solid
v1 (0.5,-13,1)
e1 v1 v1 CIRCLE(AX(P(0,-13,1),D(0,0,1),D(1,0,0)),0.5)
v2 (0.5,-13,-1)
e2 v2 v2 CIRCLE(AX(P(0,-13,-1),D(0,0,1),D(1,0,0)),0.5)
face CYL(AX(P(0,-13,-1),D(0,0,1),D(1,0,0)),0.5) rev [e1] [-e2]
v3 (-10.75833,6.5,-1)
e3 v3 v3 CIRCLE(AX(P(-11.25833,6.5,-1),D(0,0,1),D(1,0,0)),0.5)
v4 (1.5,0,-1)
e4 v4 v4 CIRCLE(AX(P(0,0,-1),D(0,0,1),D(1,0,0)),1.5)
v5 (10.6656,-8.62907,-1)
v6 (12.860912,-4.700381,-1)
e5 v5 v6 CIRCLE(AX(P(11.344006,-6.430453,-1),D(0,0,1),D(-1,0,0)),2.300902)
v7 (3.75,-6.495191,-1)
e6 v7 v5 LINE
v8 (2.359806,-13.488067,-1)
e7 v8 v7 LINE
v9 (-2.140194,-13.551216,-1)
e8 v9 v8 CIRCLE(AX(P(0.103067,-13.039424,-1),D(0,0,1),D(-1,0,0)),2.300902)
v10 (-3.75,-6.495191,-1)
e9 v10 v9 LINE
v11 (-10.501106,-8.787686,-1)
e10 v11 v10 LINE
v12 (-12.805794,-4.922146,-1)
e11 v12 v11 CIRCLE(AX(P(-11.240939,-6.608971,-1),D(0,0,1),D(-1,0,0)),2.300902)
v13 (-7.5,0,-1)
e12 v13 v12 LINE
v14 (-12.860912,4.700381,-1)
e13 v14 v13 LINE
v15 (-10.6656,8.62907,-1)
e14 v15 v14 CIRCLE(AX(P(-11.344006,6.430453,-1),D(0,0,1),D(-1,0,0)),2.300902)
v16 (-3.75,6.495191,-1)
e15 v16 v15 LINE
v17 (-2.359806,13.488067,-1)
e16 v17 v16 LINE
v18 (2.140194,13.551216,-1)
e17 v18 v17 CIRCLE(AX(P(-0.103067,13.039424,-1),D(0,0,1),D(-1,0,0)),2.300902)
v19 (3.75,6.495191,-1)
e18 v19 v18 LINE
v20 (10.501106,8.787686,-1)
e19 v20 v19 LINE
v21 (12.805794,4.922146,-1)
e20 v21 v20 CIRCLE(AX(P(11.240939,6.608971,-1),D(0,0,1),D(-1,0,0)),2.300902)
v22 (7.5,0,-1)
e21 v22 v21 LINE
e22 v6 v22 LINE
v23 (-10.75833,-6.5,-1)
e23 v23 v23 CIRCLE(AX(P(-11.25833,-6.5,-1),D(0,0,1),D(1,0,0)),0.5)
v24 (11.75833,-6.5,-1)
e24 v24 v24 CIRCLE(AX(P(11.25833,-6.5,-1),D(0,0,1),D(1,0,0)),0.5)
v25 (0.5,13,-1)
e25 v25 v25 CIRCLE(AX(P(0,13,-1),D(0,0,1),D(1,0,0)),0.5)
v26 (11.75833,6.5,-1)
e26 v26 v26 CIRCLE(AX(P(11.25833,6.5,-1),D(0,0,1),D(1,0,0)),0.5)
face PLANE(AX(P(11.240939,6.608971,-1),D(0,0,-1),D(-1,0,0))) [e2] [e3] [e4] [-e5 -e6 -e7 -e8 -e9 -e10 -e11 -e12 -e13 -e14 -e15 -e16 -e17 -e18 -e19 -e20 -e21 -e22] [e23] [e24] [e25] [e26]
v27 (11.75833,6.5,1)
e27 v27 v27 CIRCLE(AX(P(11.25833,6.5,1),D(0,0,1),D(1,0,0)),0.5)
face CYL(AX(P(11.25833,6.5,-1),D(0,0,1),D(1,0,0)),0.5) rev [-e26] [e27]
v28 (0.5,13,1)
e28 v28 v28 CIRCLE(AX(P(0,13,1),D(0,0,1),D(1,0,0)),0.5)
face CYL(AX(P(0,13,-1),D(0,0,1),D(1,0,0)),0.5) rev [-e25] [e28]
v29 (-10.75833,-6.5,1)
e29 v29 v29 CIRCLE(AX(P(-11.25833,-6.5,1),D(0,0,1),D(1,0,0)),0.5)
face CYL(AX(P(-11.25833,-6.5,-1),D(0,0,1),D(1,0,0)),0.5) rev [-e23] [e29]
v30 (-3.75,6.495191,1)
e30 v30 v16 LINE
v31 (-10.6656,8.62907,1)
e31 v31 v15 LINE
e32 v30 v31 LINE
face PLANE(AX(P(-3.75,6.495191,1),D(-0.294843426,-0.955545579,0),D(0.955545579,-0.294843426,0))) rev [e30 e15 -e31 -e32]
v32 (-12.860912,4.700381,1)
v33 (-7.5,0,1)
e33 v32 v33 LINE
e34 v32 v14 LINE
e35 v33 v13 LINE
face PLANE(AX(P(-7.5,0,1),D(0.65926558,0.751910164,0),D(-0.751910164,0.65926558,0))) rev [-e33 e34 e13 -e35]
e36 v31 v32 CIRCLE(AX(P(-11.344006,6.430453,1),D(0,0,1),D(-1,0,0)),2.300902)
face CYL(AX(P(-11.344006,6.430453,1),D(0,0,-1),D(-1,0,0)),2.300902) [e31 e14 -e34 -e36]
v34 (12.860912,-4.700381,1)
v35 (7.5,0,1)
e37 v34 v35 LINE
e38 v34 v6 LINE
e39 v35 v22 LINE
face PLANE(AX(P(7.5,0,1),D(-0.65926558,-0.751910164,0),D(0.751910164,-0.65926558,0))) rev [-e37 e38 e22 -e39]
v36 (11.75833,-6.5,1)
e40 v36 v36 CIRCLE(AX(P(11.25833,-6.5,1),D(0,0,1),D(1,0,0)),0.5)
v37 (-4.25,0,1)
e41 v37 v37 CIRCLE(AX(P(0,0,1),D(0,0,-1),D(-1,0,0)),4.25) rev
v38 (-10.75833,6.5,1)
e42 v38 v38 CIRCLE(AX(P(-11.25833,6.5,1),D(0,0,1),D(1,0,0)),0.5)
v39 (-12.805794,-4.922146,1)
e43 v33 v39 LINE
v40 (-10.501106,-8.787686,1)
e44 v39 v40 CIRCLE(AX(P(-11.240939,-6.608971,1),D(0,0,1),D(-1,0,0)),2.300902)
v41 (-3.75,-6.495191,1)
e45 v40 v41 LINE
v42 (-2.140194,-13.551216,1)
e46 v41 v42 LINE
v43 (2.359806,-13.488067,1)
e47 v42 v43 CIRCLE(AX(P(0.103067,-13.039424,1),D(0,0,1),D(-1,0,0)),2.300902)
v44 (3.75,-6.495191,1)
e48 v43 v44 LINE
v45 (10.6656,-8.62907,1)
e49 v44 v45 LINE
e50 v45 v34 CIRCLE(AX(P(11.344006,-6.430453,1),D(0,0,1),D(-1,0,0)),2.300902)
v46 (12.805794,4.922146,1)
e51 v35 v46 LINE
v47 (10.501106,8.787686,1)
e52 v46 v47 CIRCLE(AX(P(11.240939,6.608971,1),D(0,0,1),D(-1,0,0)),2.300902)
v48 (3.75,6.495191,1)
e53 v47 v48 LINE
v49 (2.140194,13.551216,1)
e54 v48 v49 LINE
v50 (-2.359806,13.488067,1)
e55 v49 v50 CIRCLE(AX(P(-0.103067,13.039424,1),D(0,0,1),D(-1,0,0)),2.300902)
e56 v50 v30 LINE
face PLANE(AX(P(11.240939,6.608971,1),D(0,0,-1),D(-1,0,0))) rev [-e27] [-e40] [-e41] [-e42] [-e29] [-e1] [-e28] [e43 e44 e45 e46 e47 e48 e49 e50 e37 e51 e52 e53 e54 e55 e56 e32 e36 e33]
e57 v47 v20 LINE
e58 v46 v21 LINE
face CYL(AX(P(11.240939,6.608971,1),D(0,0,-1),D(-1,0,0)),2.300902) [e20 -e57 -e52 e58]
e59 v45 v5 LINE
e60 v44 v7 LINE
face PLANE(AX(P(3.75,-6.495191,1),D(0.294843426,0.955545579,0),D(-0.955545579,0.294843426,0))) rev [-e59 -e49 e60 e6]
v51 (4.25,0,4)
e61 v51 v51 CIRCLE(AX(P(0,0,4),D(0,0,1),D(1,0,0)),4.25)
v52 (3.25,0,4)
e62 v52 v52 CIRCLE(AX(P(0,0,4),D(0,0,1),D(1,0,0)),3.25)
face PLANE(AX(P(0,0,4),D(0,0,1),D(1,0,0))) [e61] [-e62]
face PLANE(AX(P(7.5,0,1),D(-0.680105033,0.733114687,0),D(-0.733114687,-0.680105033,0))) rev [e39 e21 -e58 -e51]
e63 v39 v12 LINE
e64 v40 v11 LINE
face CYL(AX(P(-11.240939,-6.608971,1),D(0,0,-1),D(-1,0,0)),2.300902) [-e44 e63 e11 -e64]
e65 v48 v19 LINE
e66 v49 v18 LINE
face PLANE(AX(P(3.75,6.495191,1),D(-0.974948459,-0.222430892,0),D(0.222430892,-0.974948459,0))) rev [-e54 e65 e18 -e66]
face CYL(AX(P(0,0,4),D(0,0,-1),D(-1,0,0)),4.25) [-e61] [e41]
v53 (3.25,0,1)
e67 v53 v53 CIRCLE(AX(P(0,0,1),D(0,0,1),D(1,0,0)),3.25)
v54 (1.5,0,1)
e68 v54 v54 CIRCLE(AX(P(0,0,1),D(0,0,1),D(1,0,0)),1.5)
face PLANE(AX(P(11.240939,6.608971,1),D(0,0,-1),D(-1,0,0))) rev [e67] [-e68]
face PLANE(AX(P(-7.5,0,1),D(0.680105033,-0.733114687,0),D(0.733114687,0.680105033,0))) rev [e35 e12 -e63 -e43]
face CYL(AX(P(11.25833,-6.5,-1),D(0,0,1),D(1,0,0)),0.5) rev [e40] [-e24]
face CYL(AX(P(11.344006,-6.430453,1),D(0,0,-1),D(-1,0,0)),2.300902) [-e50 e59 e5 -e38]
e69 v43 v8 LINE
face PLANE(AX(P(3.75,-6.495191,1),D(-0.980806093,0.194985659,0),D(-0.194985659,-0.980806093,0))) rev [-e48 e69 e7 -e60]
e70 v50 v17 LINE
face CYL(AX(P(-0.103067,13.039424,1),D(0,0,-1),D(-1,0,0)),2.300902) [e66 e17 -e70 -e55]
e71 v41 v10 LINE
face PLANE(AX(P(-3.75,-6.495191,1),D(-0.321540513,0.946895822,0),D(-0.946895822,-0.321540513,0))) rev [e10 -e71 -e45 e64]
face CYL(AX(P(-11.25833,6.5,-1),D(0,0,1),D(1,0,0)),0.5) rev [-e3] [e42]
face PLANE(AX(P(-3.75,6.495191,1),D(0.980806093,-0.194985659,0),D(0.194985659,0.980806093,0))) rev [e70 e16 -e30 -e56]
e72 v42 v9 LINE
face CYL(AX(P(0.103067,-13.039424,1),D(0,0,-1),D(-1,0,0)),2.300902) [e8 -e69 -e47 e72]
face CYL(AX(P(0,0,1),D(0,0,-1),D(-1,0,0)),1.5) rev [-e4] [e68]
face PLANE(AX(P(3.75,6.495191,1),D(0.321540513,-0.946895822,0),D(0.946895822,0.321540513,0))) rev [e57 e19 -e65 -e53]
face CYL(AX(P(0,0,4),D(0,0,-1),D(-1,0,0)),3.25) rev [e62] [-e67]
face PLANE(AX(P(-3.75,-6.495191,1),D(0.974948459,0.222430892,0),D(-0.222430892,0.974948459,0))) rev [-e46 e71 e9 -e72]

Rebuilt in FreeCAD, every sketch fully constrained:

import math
import FreeCAD as App
import Part
import Sketcher

V = App.Vector

doc = App.newDocument("Part")
params = doc.addObject("Spreadsheet::Sheet", "Params")
for row, (alias, value) in enumerate([
    ("sketch1_diameter", "3 mm"),
    ("pad1_length", "2 mm"),
    ("sketch2_diameter", "8.5 mm"),
    ("sketch2_diameter2", "6.5 mm"),
    ("pad2_length", "3 mm"),
    ("sketch3_diameter", "1 mm"),
    ("pocket1_length", "2 mm"),
], start=1):
    params.set(f"A{row}", alias)
    params.set(f"B{row}", "=" + value)
    params.setAlias(f"B{row}", alias)

body = doc.addObject("PartDesign::Body", "Body")

sketch1 = body.newObject("Sketcher::SketchObject", "Sketch")
sketch1.AttachmentSupport = (doc.getObject("XY_Plane"), [""])
sketch1.MapMode = "FlatFace"
sketch1.addGeometry(Part.LineSegment(V(3.75, 6.495191, 0), V(2.140194, 13.551216, 0)), False)
sketch1.addGeometry(Part.ArcOfCircle(Part.Circle(V(-0.103067, 13.039424, 0), V(0, 0, 1), 2.300902), math.radians(12.851851), math.radians(168.756114)), False)
sketch1.addGeometry(Part.LineSegment(V(-2.359806, 13.488067, 0), V(-3.75, 6.495191, 0)), False)
sketch1.addGeometry(Part.LineSegment(V(-3.75, 6.495191, 0), V(-10.6656, 8.62907, 0)), False)
sketch1.addGeometry(Part.ArcOfCircle(Part.Circle(V(-11.344006, 6.430453, 0), V(0, 0, 1), 2.300902), math.radians(72.851851), math.radians(228.756114)), False)
sketch1.addGeometry(Part.LineSegment(V(-12.860912, 4.700381, 0), V(-7.5, 0, 0)), False)
sketch1.addGeometry(Part.LineSegment(V(-7.5, 0, 0), V(-12.805794, -4.922146, 0)), False)
sketch1.addGeometry(Part.ArcOfCircle(Part.Circle(V(-11.240939, -6.608971, 0), V(0, 0, 1), 2.300902), math.radians(132.851851), math.radians(288.756114)), False)
sketch1.addGeometry(Part.LineSegment(V(-10.501106, -8.787686, 0), V(-3.75, -6.495191, 0)), False)
sketch1.addGeometry(Part.LineSegment(V(-3.75, -6.495191, 0), V(-2.140194, -13.551216, 0)), False)
sketch1.addGeometry(Part.ArcOfCircle(Part.Circle(V(0.103067, -13.039424, 0), V(0, 0, 1), 2.300902), math.radians(-167.148149), math.radians(-11.243886)), False)
sketch1.addGeometry(Part.LineSegment(V(2.359806, -13.488067, 0), V(3.75, -6.495191, 0)), False)
sketch1.addGeometry(Part.LineSegment(V(3.75, -6.495191, 0), V(10.6656, -8.62907, 0)), False)
sketch1.addGeometry(Part.ArcOfCircle(Part.Circle(V(11.344006, -6.430453, 0), V(0, 0, 1), 2.300902), math.radians(-107.148149), math.radians(48.756114)), False)
sketch1.addGeometry(Part.LineSegment(V(12.860912, -4.700381, 0), V(7.5, 0, 0)), False)
sketch1.addGeometry(Part.LineSegment(V(7.5, 0, 0), V(12.805794, 4.922146, 0)), False)
sketch1.addGeometry(Part.ArcOfCircle(Part.Circle(V(11.240939, 6.608971, 0), V(0, 0, 1), 2.300902), math.radians(-47.148149), math.radians(108.756114)), False)
sketch1.addGeometry(Part.LineSegment(V(10.501106, 8.787686, 0), V(3.75, 6.495191, 0)), False)
sketch1.addGeometry(Part.Circle(V(0, 0, 0), V(0, 0, 1), 1.5), False)
sketch1.addConstraint(Sketcher.Constraint("Coincident", 0, 2, 1, 1))
sketch1.addConstraint(Sketcher.Constraint("Coincident", 1, 2, 2, 1))
sketch1.addConstraint(Sketcher.Constraint("Coincident", 2, 2, 3, 1))
sketch1.addConstraint(Sketcher.Constraint("Coincident", 3, 2, 4, 1))
sketch1.addConstraint(Sketcher.Constraint("Coincident", 4, 2, 5, 1))
sketch1.addConstraint(Sketcher.Constraint("Coincident", 5, 2, 6, 1))
sketch1.addConstraint(Sketcher.Constraint("Coincident", 6, 2, 7, 1))
sketch1.addConstraint(Sketcher.Constraint("Coincident", 7, 2, 8, 1))
sketch1.addConstraint(Sketcher.Constraint("Coincident", 8, 2, 9, 1))
sketch1.addConstraint(Sketcher.Constraint("Coincident", 9, 2, 10, 1))
sketch1.addConstraint(Sketcher.Constraint("Coincident", 10, 2, 11, 1))
sketch1.addConstraint(Sketcher.Constraint("Coincident", 11, 2, 12, 1))
sketch1.addConstraint(Sketcher.Constraint("Coincident", 12, 2, 13, 1))
sketch1.addConstraint(Sketcher.Constraint("Coincident", 13, 2, 14, 1))
sketch1.addConstraint(Sketcher.Constraint("Coincident", 14, 2, 15, 1))
sketch1.addConstraint(Sketcher.Constraint("Coincident", 15, 2, 16, 1))
sketch1.addConstraint(Sketcher.Constraint("Coincident", 16, 2, 17, 1))
sketch1.addConstraint(Sketcher.Constraint("Coincident", 17, 2, 0, 1))
sketch1.addConstraint(Sketcher.Constraint("Coincident", 18, 3, -1, 1))
sketch1.addConstraint(Sketcher.Constraint("PointOnObject", 5, 2, -1))
sketch1.addConstraint(Sketcher.Constraint("PointOnObject", 14, 2, -1))
sketch1.addConstraint(Sketcher.Constraint("Diameter", 18, 3.0))
sketch1.addConstraint(Sketcher.Constraint("DistanceX", 5, 2, -1, 1, 7.5))
sketch1.addConstraint(Sketcher.Constraint("DistanceX", -1, 1, 14, 2, 7.5))
sketch1.addConstraint(Sketcher.Constraint("DistanceX", 1, 2, 0, 2, 4.5))
sketch1.addConstraint(Sketcher.Constraint("DistanceX", 9, 2, 10, 2, 4.5))
sketch1.addConstraint(Sketcher.Constraint("DistanceX", 8, 2, 11, 2, 7.5))
sketch1.addConstraint(Sketcher.Constraint("DistanceX", 2, 2, -1, 1, 3.75))
sketch1.addConstraint(Sketcher.Constraint("DistanceX", 8, 2, -1, 1, 3.75))
sketch1.addConstraint(Sketcher.Constraint("DistanceX", -1, 1, 17, 2, 3.75))
sketch1.addConstraint(Sketcher.Constraint("Radius", 1, 2.300902))
sketch1.addConstraint(Sketcher.Constraint("Radius", 4, 2.300902))
sketch1.addConstraint(Sketcher.Constraint("Radius", 7, 2.300902))
sketch1.addConstraint(Sketcher.Constraint("Radius", 10, 2.300902))
sketch1.addConstraint(Sketcher.Constraint("Radius", 13, 2.300902))
sketch1.addConstraint(Sketcher.Constraint("Radius", 16, 2.300902))
sketch1.addConstraint(Sketcher.Constraint("DistanceX", 3, 2, -1, 1, 10.6656))
sketch1.addConstraint(Sketcher.Constraint("DistanceX", -1, 1, 12, 2, 10.6656))
sketch1.addConstraint(Sketcher.Constraint("DistanceX", 4, 3, 0, 2, 13.4842))
sketch1.addConstraint(Sketcher.Constraint("DistanceY", 6, 2, 4, 3, 11.352599))
sketch1.addConstraint(Sketcher.Constraint("DistanceX", 10, 2, 13, 3, 8.9842))
sketch1.addConstraint(Sketcher.Constraint("DistanceY", 13, 3, 15, 2, 11.352599))
sketch1.addConstraint(Sketcher.Constraint("Distance", 0, 7.237332))
sketch1.addConstraint(Sketcher.Constraint("Distance", 3, 7.237332))
sketch1.addConstraint(Sketcher.Constraint("Distance", 6, 7.237332))
sketch1.addConstraint(Sketcher.Constraint("Distance", 9, 7.237332))
sketch1.addConstraint(Sketcher.Constraint("Distance", 12, 7.237332))
sketch1.addConstraint(Sketcher.Constraint("Distance", 15, 7.237332))
sketch1.addConstraint(Sketcher.Constraint("DistanceX", 7, 3, -1, 1, 11.240939))
sketch1.addConstraint(Sketcher.Constraint("DistanceY", 7, 3, -1, 1, 6.608971))
sketch1.addConstraint(Sketcher.Constraint("DistanceX", -1, 1, 16, 3, 11.240939))
sketch1.addConstraint(Sketcher.Constraint("DistanceY", -1, 1, 16, 3, 6.608971))
sketch1.addConstraint(Sketcher.Constraint("DistanceY", -1, 1, 2, 2, 6.495191))
sketch1.addConstraint(Sketcher.Constraint("DistanceX", 4, 2, -1, 1, 12.860912))
sketch1.addConstraint(Sketcher.Constraint("DistanceY", 8, 2, -1, 1, 6.495191))
sketch1.addConstraint(Sketcher.Constraint("DistanceY", 11, 2, -1, 1, 6.495191))
sketch1.addConstraint(Sketcher.Constraint("DistanceX", -1, 1, 13, 2, 12.860912))
sketch1.addConstraint(Sketcher.Constraint("DistanceY", -1, 1, 17, 2, 6.495191))
sketch1.addConstraint(Sketcher.Constraint("DistanceX", 4, 3, 1, 3, 11.240939))
sketch1.addConstraint(Sketcher.Constraint("DistanceY", 10, 3, 1, 3, 26.078848))
sketch1.addConstraint(Sketcher.Constraint("DistanceX", 6, 2, 7, 2, 2.304688))
sketch1.addConstraint(Sketcher.Constraint("DistanceX", 16, 2, 15, 2, 2.304688))
sketch1.setExpression("Constraints[21]", "Params.sketch1_diameter")
pad1 = body.newObject("PartDesign::Pad", "Pad")
pad1.Profile = sketch1
pad1.setExpression("Length", "Params.pad1_length")
pad1.Midplane = True

sketch2 = body.newObject("Sketcher::SketchObject", "Sketch001")
sketch2.AttachmentSupport = (doc.getObject("XY_Plane"), [""])
sketch2.MapMode = "FlatFace"
sketch2.AttachmentOffset = App.Placement(V(0, 0, 1), App.Rotation())
sketch2.addGeometry(Part.Circle(V(0, 0, 0), V(0, 0, 1), 4.25), False)
sketch2.addGeometry(Part.Circle(V(0, 0, 0), V(0, 0, 1), 3.25), False)
sketch2.addConstraint(Sketcher.Constraint("Coincident", 0, 3, -1, 1))
sketch2.addConstraint(Sketcher.Constraint("Coincident", 1, 3, -1, 1))
sketch2.addConstraint(Sketcher.Constraint("Diameter", 0, 8.5))
sketch2.addConstraint(Sketcher.Constraint("Diameter", 1, 6.5))
sketch2.setExpression("Constraints[2]", "Params.sketch2_diameter")
sketch2.setExpression("Constraints[3]", "Params.sketch2_diameter2")
pad2 = body.newObject("PartDesign::Pad", "Pad001")
pad2.Profile = sketch2
pad2.setExpression("Length", "Params.pad2_length")

sketch3 = body.newObject("Sketcher::SketchObject", "Sketch002")
sketch3.AttachmentSupport = (doc.getObject("XY_Plane"), [""])
sketch3.MapMode = "FlatFace"
sketch3.AttachmentOffset = App.Placement(V(0, 0, 1), App.Rotation())
sketch3.addGeometry(Part.Circle(V(0, 13, 0), V(0, 0, 1), 0.5), False)
sketch3.addGeometry(Part.Circle(V(11.25833, 6.5, 0), V(0, 0, 1), 0.5), False)
sketch3.addGeometry(Part.Circle(V(11.25833, -6.5, 0), V(0, 0, 1), 0.5), False)
sketch3.addGeometry(Part.Circle(V(0, -13, 0), V(0, 0, 1), 0.5), False)
sketch3.addGeometry(Part.Circle(V(-11.25833, -6.5, 0), V(0, 0, 1), 0.5), False)
sketch3.addGeometry(Part.Circle(V(-11.25833, 6.5, 0), V(0, 0, 1), 0.5), False)
sketch3.addConstraint(Sketcher.Constraint("Equal", 0, 1))
sketch3.addConstraint(Sketcher.Constraint("Equal", 1, 2))
sketch3.addConstraint(Sketcher.Constraint("Equal", 2, 3))
sketch3.addConstraint(Sketcher.Constraint("Equal", 3, 4))
sketch3.addConstraint(Sketcher.Constraint("Equal", 4, 5))
sketch3.addConstraint(Sketcher.Constraint("Symmetric", 0, 3, 3, 3, -1, 1))
sketch3.addConstraint(Sketcher.Constraint("Symmetric", 1, 3, 4, 3, -1, 1))
sketch3.addConstraint(Sketcher.Constraint("Symmetric", 2, 3, 5, 3, -1, 1))
sketch3.addConstraint(Sketcher.Constraint("Symmetric", 2, 3, 4, 3, -2))
sketch3.addConstraint(Sketcher.Constraint("PointOnObject", 0, 3, -2))
sketch3.addConstraint(Sketcher.Constraint("Diameter", 0, 1.0))
sketch3.addConstraint(Sketcher.Constraint("DistanceY", -1, 1, 0, 3, 13.0))
sketch3.addConstraint(Sketcher.Constraint("DistanceY", 2, 3, 1, 3, 13.0))
sketch3.addConstraint(Sketcher.Constraint("DistanceX", -1, 1, 1, 3, 11.25833))
sketch3.setExpression("Constraints[10]", "Params.sketch3_diameter")
pocket1 = body.newObject("PartDesign::Pocket", "Pocket")
pocket1.Profile = sketch3
pocket1.setExpression("Length", "Params.pocket1_length")

doc.recompute()
